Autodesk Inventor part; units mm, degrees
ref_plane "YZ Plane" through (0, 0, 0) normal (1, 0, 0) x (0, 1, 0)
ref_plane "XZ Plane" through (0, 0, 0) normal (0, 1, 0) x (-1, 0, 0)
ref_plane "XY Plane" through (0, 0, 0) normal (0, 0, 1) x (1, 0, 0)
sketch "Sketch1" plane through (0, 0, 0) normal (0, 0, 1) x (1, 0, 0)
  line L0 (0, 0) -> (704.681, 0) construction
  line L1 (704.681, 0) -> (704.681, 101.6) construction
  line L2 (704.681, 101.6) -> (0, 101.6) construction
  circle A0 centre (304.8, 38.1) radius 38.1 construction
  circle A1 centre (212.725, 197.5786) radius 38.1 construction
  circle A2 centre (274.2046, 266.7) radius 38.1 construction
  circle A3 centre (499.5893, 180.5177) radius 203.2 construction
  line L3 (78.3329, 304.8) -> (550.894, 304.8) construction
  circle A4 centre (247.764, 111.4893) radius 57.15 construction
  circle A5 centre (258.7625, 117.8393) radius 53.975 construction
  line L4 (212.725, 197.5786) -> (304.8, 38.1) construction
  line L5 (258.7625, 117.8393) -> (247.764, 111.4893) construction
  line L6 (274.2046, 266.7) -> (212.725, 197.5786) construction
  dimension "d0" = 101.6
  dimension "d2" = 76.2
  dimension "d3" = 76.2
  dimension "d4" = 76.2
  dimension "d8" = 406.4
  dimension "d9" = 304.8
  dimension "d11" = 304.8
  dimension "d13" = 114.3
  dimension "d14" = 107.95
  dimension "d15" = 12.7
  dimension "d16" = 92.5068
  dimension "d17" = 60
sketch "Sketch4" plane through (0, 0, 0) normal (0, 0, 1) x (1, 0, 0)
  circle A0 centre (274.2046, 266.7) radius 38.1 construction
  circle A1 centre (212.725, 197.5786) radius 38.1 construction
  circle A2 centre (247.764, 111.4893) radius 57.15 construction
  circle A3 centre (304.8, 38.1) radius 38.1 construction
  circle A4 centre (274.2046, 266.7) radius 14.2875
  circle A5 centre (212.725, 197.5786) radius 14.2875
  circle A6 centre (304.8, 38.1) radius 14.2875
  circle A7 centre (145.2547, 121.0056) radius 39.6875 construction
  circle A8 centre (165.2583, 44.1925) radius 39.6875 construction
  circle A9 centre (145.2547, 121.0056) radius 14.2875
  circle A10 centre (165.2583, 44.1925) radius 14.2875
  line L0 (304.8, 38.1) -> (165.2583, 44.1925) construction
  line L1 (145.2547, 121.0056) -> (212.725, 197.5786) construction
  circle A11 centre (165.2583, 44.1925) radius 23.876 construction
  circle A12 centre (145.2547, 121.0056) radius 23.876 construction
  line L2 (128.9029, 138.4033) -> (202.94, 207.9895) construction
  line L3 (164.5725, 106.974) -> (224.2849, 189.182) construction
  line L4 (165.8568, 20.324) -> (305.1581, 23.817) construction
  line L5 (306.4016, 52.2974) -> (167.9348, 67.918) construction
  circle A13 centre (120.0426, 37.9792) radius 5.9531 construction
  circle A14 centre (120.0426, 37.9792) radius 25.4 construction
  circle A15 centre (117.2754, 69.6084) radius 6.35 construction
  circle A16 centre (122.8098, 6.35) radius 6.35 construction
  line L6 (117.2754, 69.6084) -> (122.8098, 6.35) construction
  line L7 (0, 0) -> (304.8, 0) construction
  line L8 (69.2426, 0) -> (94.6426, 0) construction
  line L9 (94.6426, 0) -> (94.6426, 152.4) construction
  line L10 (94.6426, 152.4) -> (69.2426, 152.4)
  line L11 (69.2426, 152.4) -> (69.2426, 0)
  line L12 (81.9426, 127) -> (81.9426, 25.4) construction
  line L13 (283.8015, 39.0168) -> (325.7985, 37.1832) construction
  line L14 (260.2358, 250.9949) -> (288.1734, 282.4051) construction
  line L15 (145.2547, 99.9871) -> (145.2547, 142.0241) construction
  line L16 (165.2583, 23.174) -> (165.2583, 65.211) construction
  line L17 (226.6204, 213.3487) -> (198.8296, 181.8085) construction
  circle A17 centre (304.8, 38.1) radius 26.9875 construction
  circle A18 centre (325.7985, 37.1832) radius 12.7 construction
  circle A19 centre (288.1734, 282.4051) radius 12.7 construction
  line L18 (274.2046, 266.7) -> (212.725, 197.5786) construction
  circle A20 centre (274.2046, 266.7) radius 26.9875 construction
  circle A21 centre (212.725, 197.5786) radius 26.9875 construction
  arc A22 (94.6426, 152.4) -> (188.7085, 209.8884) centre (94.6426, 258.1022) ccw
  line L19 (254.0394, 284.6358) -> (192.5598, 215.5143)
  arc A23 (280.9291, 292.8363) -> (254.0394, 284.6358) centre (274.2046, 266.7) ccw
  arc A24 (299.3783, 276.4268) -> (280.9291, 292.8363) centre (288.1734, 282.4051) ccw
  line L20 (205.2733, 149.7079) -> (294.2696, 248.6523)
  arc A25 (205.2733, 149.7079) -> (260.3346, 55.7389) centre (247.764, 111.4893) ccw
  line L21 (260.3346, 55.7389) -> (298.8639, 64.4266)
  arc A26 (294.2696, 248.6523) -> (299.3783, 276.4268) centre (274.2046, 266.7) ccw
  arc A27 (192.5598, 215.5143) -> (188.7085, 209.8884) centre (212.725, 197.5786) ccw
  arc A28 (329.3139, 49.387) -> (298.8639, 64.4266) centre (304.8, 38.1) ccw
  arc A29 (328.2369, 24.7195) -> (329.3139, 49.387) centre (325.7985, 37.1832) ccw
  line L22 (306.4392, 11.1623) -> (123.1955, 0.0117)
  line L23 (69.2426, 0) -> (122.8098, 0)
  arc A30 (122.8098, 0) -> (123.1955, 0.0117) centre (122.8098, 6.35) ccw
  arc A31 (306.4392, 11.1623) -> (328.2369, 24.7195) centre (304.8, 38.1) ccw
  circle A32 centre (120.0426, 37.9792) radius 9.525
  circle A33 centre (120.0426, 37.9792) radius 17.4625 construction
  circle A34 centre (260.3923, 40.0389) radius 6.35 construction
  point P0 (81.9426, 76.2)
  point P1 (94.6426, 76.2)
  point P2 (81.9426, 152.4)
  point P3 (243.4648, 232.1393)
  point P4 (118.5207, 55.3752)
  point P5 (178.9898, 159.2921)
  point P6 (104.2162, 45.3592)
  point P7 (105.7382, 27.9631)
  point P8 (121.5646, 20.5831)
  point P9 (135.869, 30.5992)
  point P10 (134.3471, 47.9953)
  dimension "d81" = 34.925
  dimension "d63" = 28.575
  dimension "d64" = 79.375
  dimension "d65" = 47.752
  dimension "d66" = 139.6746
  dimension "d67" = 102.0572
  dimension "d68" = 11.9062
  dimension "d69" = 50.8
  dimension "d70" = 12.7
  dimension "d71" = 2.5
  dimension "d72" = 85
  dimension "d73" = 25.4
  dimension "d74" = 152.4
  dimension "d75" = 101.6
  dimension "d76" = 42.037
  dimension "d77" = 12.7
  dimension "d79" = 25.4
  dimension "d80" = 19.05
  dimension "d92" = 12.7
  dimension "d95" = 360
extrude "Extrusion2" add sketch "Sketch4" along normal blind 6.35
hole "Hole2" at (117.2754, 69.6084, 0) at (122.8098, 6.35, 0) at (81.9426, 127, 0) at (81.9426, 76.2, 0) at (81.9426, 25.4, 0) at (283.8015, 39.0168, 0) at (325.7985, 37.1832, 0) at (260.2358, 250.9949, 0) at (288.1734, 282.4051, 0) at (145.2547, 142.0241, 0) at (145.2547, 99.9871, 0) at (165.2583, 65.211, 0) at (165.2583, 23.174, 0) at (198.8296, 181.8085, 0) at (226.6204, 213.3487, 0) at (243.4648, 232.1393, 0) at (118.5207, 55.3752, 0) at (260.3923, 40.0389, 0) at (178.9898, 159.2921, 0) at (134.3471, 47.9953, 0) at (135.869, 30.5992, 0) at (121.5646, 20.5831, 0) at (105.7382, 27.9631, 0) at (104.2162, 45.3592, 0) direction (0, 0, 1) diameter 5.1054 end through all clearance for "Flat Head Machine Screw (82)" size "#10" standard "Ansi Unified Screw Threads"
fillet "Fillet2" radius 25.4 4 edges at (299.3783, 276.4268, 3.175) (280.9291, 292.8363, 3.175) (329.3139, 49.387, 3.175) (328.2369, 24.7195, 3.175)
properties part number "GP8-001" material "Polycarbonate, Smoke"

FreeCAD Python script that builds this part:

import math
import FreeCAD as App
import Part
import Sketcher

V = App.Vector
Q = App.Units.Quantity


def edges_at(feature, points):
    """Names of the edges that pass closest to the given points."""
    edges = feature.Shape.Edges
    near = lambda p: min(range(len(edges)), key=lambda i: edges[i].distToShape(Part.Vertex(*p))[0])
    return sorted({f"Edge{near(p) + 1}" for p in points})

doc = App.newDocument("Part")
body = doc.addObject("PartDesign::Body", "Body")

sketch1 = body.newObject("Sketcher::SketchObject", "Sketch")
sketch1.AttachmentSupport = (doc.getObject("XY_Plane"), [""])
sketch1.MapMode = "FlatFace"
sketch1.addGeometry(Part.ArcOfCircle(Part.Circle(V(94.6426, 258.1022, 0), V(0, 0, 1), 105.7022), math.radians(-90), math.radians(-27.137564)), False)
sketch1.addGeometry(Part.LineSegment(V(94.6426, 152.4, 0), V(69.2426, 152.4, 0)), False)
sketch1.addGeometry(Part.LineSegment(V(69.2426, 152.4, 0), V(69.2426, 0, 0)), False)
sketch1.addGeometry(Part.LineSegment(V(69.2426, 0, 0), V(122.8098, 0, 0)), False)
sketch1.addGeometry(Part.ArcOfCircle(Part.Circle(V(122.809395, 6.376663, 0), V(0, 0, 1), 6.376663), math.radians(-89.99636), math.radians(-86.528633)), False)
sketch1.addGeometry(Part.LineSegment(V(123.1955, 0.0117, 0), V(306.4392, 11.1623, 0)), False)
sketch1.addGeometry(Part.ArcOfCircle(Part.Circle(V(304.8, 38.1, 0), V(0, 0, 1), 26.9875), math.radians(-86.517759), math.radians(-29.722735)), False)
sketch1.addGeometry(Part.ArcOfCircle(Part.Circle(V(325.7985, 37.1832, 0), V(0, 0, 1), 12.7), math.radians(-78.930462), math.radians(73.930541)), False)
sketch1.addGeometry(Part.ArcOfCircle(Part.Circle(V(304.8, 38.1, 0), V(0, 0, 1), 26.987528), math.radians(24.722887), math.radians(102.706512)), False)
sketch1.addGeometry(Part.LineSegment(V(298.8639, 64.4266, 0), V(260.3346, 55.7389, 0)), False)
sketch1.addGeometry(Part.ArcOfCircle(Part.Circle(V(247.764, 111.4893, 0), V(0, 0, 1), 57.15), math.radians(138.029949), math.radians(282.706557)), False)
sketch1.addGeometry(Part.LineSegment(V(205.2733, 149.7079, 0), V(294.2696, 248.6523, 0)), False)
sketch1.addGeometry(Part.ArcOfCircle(Part.Circle(V(274.2046, 266.7, 0), V(0, 0, 1), 26.9875), math.radians(-41.97017), math.radians(21.125903)), False)
sketch1.addGeometry(Part.ArcOfCircle(Part.Circle(V(288.1734, 282.4051, 0), V(0, 0, 1), 12.699994), math.radians(-28.081855), math.radians(124.779355)), False)
sketch1.addGeometry(Part.ArcOfCircle(Part.Circle(V(274.2046, 266.7, 0), V(0, 0, 1), 26.9875), math.radians(75.571543), math.radians(138.348724)), False)
sketch1.addGeometry(Part.LineSegment(V(254.0394, 284.6358, 0), V(192.5598, 215.5143, 0)), False)
sketch1.addGeometry(Part.ArcOfCircle(Part.Circle(V(212.723925, 197.57944, 0), V(0, 0, 1), 26.986129), math.radians(138.348699), math.radians(152.862868)), False)
sketch1.addGeometry(Part.Circle(V(120.0426, 37.9792, 0), V(0, 0, 1), 9.525), False)
sketch1.addGeometry(Part.Circle(V(165.2583, 44.1925, 0), V(0, 0, 1), 14.2875), False)
sketch1.addGeometry(Part.Circle(V(145.2547, 121.0056, 0), V(0, 0, 1), 14.2875), False)
sketch1.addGeometry(Part.Circle(V(304.8, 38.1, 0), V(0, 0, 1), 14.2875), False)
sketch1.addGeometry(Part.Circle(V(212.725, 197.5786, 0), V(0, 0, 1), 14.2875), False)
sketch1.addGeometry(Part.Circle(V(274.2046, 266.7, 0), V(0, 0, 1), 14.2875), False)
sketch1.addConstraint(Sketcher.Constraint("Coincident", 0, 1, 1, 1))
sketch1.addConstraint(Sketcher.Constraint("Coincident", 1, 2, 2, 1))
sketch1.addConstraint(Sketcher.Constraint("Coincident", 2, 2, 3, 1))
sketch1.addConstraint(Sketcher.Constraint("Coincident", 3, 2, 4, 1))
sketch1.addConstraint(Sketcher.Constraint("Coincident", 4, 2, 5, 1))
sketch1.addConstraint(Sketcher.Constraint("Coincident", 5, 2, 6, 1))
sketch1.addConstraint(Sketcher.Constraint("Coincident", 6, 2, 7, 1))
sketch1.addConstraint(Sketcher.Constraint("Coincident", 7, 2, 8, 1))
sketch1.addConstraint(Sketcher.Constraint("Coincident", 8, 2, 9, 1))
sketch1.addConstraint(Sketcher.Constraint("Coincident", 9, 2, 10, 2))
sketch1.addConstraint(Sketcher.Constraint("Coincident", 10, 1, 11, 1))
sketch1.addConstraint(Sketcher.Constraint("Coincident", 11, 2, 12, 1))
sketch1.addConstraint(Sketcher.Constraint("Coincident", 12, 2, 13, 1))
sketch1.addConstraint(Sketcher.Constraint("Coincident", 13, 2, 14, 1))
sketch1.addConstraint(Sketcher.Constraint("Coincident", 14, 2, 15, 1))
sketch1.addConstraint(Sketcher.Constraint("Coincident", 15, 2, 16, 1))
sketch1.addConstraint(Sketcher.Constraint("Coincident", 16, 2, 0, 2))
sketch1.addConstraint(Sketcher.Constraint("Horizontal", 1))
sketch1.addConstraint(Sketcher.Constraint("Vertical", 2))
sketch1.addConstraint(Sketcher.Constraint("Horizontal", 3))
sketch1.addConstraint(Sketcher.Constraint("Coincident", 8, 3, 6, 3))
sketch1.addConstraint(Sketcher.Constraint("Coincident", 14, 3, 12, 3))
sketch1.addConstraint(Sketcher.Constraint("Coincident", 20, 3, 6, 3))
sketch1.addConstraint(Sketcher.Constraint("Coincident", 22, 3, 12, 3))
sketch1.addConstraint(Sketcher.Constraint("PointOnObject", 2, 2, -1))
sketch1.addConstraint(Sketcher.Constraint("Radius", 7, Q("0.5 in")))
sketch1.addConstraint(Sketcher.Constraint("Radius", 13, Q("0.5 in")))
sketch1.addConstraint(Sketcher.Constraint("Diameter", 17, Q("0.75 in")))
sketch1.addConstraint(Sketcher.Constraint("DistanceX", 1, 2, 1, 1, Q("1 in")))
sketch1.addConstraint(Sketcher.Constraint("DistanceY", 2, 2, 2, 1, Q("6 in")))
sketch1.addConstraint(Sketcher.Constraint("Diameter", 18, Q("1.125 in")))
sketch1.addConstraint(Sketcher.Constraint("Diameter", 19, Q("1.125 in")))
sketch1.addConstraint(Sketcher.Constraint("Diameter", 20, Q("1.125 in")))
sketch1.addConstraint(Sketcher.Constraint("Diameter", 21, Q("1.125 in")))
sketch1.addConstraint(Sketcher.Constraint("Diameter", 22, Q("1.125 in")))
sketch1.addConstraint(Sketcher.Constraint("DistanceX", 0, 1, 17, 3, Q("1 in")))
sketch1.addConstraint(Sketcher.Constraint("DistanceX", 1, 2, 0, 3, Q("1 in")))
sketch1.addConstraint(Sketcher.Constraint("Radius", 10, Q("2.25 in")))
sketch1.addConstraint(Sketcher.Constraint("DistanceX", -1, 1, 6, 3, Q("12 in")))
sketch1.addConstraint(Sketcher.Constraint("Radius", 6, Q("1.0625 in")))
sketch1.addConstraint(Sketcher.Constraint("Radius", 8, Q("1.0625 in")))
sketch1.addConstraint(Sketcher.Constraint("Radius", 12, Q("1.0625 in")))
sketch1.addConstraint(Sketcher.Constraint("Radius", 14, Q("1.0625 in")))
sketch1.addConstraint(Sketcher.Constraint("DistanceY", 6, 3, 12, 3, Q("9 in")))
sketch1.addConstraint(Sketcher.Constraint("DistanceY", -1, 1, 6, 3, Q("1.5 in")))
sketch1.addConstraint(Sketcher.Constraint("Radius", 0, Q("4.1615 in")))
sketch1.addConstraint(Sketcher.Constraint("Radius", 4, 6.3767))
sketch1.addConstraint(Sketcher.Constraint("Radius", 16, 26.9861))
sketch1.addConstraint(Sketcher.Constraint("DistanceX", 13, 3, 11, 2, Q("0.24 in")))
sketch1.addConstraint(Sketcher.Constraint("Distance", 15, Q("3.642 in")))
sketch1.addConstraint(Sketcher.Constraint("DistanceY", -1, 1, 19, 3, Q("4.764 in")))
sketch1.addConstraint(Sketcher.Constraint("DistanceX", -1, 1, 21, 3, Q("8.375 in")))
sketch1.addConstraint(Sketcher.Constraint("DistanceY", -1, 1, 13, 2, Q("11.529 in")))
sketch1.addConstraint(Sketcher.Constraint("DistanceX", 12, 3, 7, 3, 51.594))
sketch1.addConstraint(Sketcher.Constraint("DistanceX", 7, 3, 6, 2, Q("0.096 in")))
sketch1.addConstraint(Sketcher.Constraint("DistanceX", 3, 1, 3, 2, 53.5672))
sketch1.addConstraint(Sketcher.Constraint("DistanceY", -1, 1, 7, 3, Q("1.4639 in")))
sketch1.addConstraint(Sketcher.Constraint("DistanceX", -1, 1, 10, 3, Q("9.7545 in")))
sketch1.addConstraint(Sketcher.Constraint("DistanceX", -1, 1, 13, 3, Q("11.3454 in")))
sketch1.addConstraint(Sketcher.Constraint("DistanceX", -1, 1, 19, 3, Q("5.7187 in")))
sketch1.addConstraint(Sketcher.Constraint("DistanceX", -1, 1, 8, 2, Q("11.7663 in")))
sketch1.addConstraint(Sketcher.Constraint("DistanceX", -1, 1, 9, 2, Q("10.2494 in")))
sketch1.addConstraint(Sketcher.Constraint("DistanceX", -1, 1, 15, 2, Q("7.5811 in")))
sketch1.addConstraint(Sketcher.Constraint("DistanceX", 4, 3, 7, 3, Q("7.9917 in")))
sketch1.addConstraint(Sketcher.Constraint("DistanceY", 4, 3, 10, 3, Q("4.1383 in")))
sketch1.addConstraint(Sketcher.Constraint("DistanceX", 0, 3, 10, 3, Q("6.0284 in")))
sketch1.addConstraint(Sketcher.Constraint("DistanceX", 16, 3, 12, 3, Q("2.4205 in")))
sketch1.addConstraint(Sketcher.Constraint("DistanceY", 4, 3, 17, 3, Q("1.2442 in")))
sketch1.addConstraint(Sketcher.Constraint("DistanceX", 3, 2, 18, 3, Q("1.6712 in")))
sketch1.addConstraint(Sketcher.Constraint("DistanceX", 4, 3, 4, 2, Q("0.0152 in")))
sketch1.addConstraint(Sketcher.Constraint("DistanceY", 4, 2, 18, 3, Q("1.7394 in")))
sketch1.addConstraint(Sketcher.Constraint("DistanceY", 10, 1, 16, 3, Q("1.8847 in")))
sketch1.addConstraint(Sketcher.Constraint("DistanceY", 16, 2, 15, 2, Q("0.2215 in")))
sketch1.addConstraint(Sketcher.Constraint("Distance", 5, 183.5827))
sketch1.addConstraint(Sketcher.Constraint("DistanceY", -1, 1, 21, 3, 197.5786))
pad1 = body.newObject("PartDesign::Pad", "Pad")
pad1.Profile = sketch1
pad1.Length = Q("0.25 in")

sketch2 = body.newObject("Sketcher::SketchObject", "Sketch001")
sketch2.AttachmentSupport = (doc.getObject("XY_Plane"), [""])
sketch2.MapMode = "FlatFace"
sketch2.addGeometry(Part.Circle(V(117.2754, 69.6084, 0), V(0, 0, 1), 2.5527), False)
sketch2.addGeometry(Part.Circle(V(122.8098, 6.35, 0), V(0, 0, 1), 2.5527), False)
sketch2.addGeometry(Part.Circle(V(81.9426, 127, 0), V(0, 0, 1), 2.5527), False)
sketch2.addGeometry(Part.Circle(V(81.9426, 76.2, 0), V(0, 0, 1), 2.5527), False)
sketch2.addGeometry(Part.Circle(V(81.9426, 25.4, 0), V(0, 0, 1), 2.5527), False)
sketch2.addGeometry(Part.Circle(V(283.8015, 39.0168, 0), V(0, 0, 1), 2.5527), False)
sketch2.addGeometry(Part.Circle(V(325.7985, 37.1832, 0), V(0, 0, 1), 2.5527), False)
sketch2.addGeometry(Part.Circle(V(260.2358, 250.9949, 0), V(0, 0, 1), 2.5527), False)
sketch2.addGeometry(Part.Circle(V(288.1734, 282.4051, 0), V(0, 0, 1), 2.5527), False)
sketch2.addGeometry(Part.Circle(V(145.2547, 142.0241, 0), V(0, 0, 1), 2.5527), False)
sketch2.addGeometry(Part.Circle(V(145.2547, 99.9871, 0), V(0, 0, 1), 2.5527), False)
sketch2.addGeometry(Part.Circle(V(165.2583, 65.211, 0), V(0, 0, 1), 2.5527), False)
sketch2.addGeometry(Part.Circle(V(165.2583, 23.174, 0), V(0, 0, 1), 2.5527), False)
sketch2.addGeometry(Part.Circle(V(198.8296, 181.8085, 0), V(0, 0, 1), 2.5527), False)
sketch2.addGeometry(Part.Circle(V(226.6204, 213.3487, 0), V(0, 0, 1), 2.5527), False)
sketch2.addGeometry(Part.Circle(V(243.4648, 232.1393, 0), V(0, 0, 1), 2.5527), False)
sketch2.addGeometry(Part.Circle(V(118.5207, 55.3752, 0), V(0, 0, 1), 2.5527), False)
sketch2.addGeometry(Part.Circle(V(260.3923, 40.0389, 0), V(0, 0, 1), 2.5527), False)
sketch2.addGeometry(Part.Circle(V(178.9898, 159.2921, 0), V(0, 0, 1), 2.5527), False)
sketch2.addGeometry(Part.Circle(V(134.3471, 47.9953, 0), V(0, 0, 1), 2.5527), False)
sketch2.addGeometry(Part.Circle(V(135.869, 30.5992, 0), V(0, 0, 1), 2.5527), False)
sketch2.addGeometry(Part.Circle(V(121.5646, 20.5831, 0), V(0, 0, 1), 2.5527), False)
sketch2.addGeometry(Part.Circle(V(105.7382, 27.9631, 0), V(0, 0, 1), 2.5527), False)
sketch2.addGeometry(Part.Circle(V(104.2162, 45.3592, 0), V(0, 0, 1), 2.5527), False)
sketch2.addConstraint(Sketcher.Constraint("Equal", 0, 1))
sketch2.addConstraint(Sketcher.Constraint("Equal", 1, 2))
sketch2.addConstraint(Sketcher.Constraint("Equal", 2, 3))
sketch2.addConstraint(Sketcher.Constraint("Equal", 3, 4))
sketch2.addConstraint(Sketcher.Constraint("Equal", 4, 5))
sketch2.addConstraint(Sketcher.Constraint("Equal", 5, 6))
sketch2.addConstraint(Sketcher.Constraint("Equal", 6, 7))
sketch2.addConstraint(Sketcher.Constraint("Equal", 7, 8))
sketch2.addConstraint(Sketcher.Constraint("Equal", 8, 9))
sketch2.addConstraint(Sketcher.Constraint("Equal", 9, 10))
sketch2.addConstraint(Sketcher.Constraint("Equal", 10, 11))
sketch2.addConstraint(Sketcher.Constraint("Equal", 11, 12))
sketch2.addConstraint(Sketcher.Constraint("Equal", 12, 13))
sketch2.addConstraint(Sketcher.Constraint("Equal", 13, 14))
sketch2.addConstraint(Sketcher.Constraint("Equal", 14, 15))
sketch2.addConstraint(Sketcher.Constraint("Equal", 15, 16))
sketch2.addConstraint(Sketcher.Constraint("Equal", 16, 17))
sketch2.addConstraint(Sketcher.Constraint("Equal", 17, 18))
sketch2.addConstraint(Sketcher.Constraint("Equal", 18, 19))
sketch2.addConstraint(Sketcher.Constraint("Equal", 19, 20))
sketch2.addConstraint(Sketcher.Constraint("Equal", 20, 21))
sketch2.addConstraint(Sketcher.Constraint("Equal", 21, 22))
sketch2.addConstraint(Sketcher.Constraint("Equal", 22, 23))
sketch2.addConstraint(Sketcher.Constraint("Vertical", 2, 3, 3, 3))
sketch2.addConstraint(Sketcher.Constraint("Vertical", 3, 3, 4, 3))
sketch2.addConstraint(Sketcher.Constraint("Vertical", 9, 3, 10, 3))
sketch2.addConstraint(Sketcher.Constraint("Vertical", 11, 3, 12, 3))
sketch2.addConstraint(Sketcher.Constraint("Diameter", 0, Q("0.201 in")))
sketch2.addConstraint(Sketcher.Constraint("DistanceY", -1, 1, 2, 3, Q("5 in")))
sketch2.addConstraint(Sketcher.Constraint("DistanceY", -1, 1, 3, 3, Q("3 in")))
sketch2.addConstraint(Sketcher.Constraint("DistanceY", -1, 1, 4, 3, Q("1 in")))
sketch2.addConstraint(Sketcher.Constraint("DistanceY", -1, 1, 1, 3, Q("0.25 in")))
sketch2.addConstraint(Sketcher.Constraint("DistanceX", -1, 1, 21, 3, Q("4.786 in")))
sketch2.addConstraint(Sketcher.Constraint("DistanceX", -1, 1, 23, 3, Q("4.103 in")))
sketch2.addConstraint(Sketcher.Constraint("DistanceY", 0, 3, 9, 3, Q("2.851 in")))
sketch2.addConstraint(Sketcher.Constraint("DistanceY", 0, 3, 10, 3, Q("1.196 in")))
sketch2.addConstraint(Sketcher.Constraint("DistanceY", 12, 3, 11, 3, Q("1.655 in")))
sketch2.addConstraint(Sketcher.Constraint("DistanceY", 12, 3, 0, 3, Q("1.828126 in")))
sketch2.addConstraint(Sketcher.Constraint("DistanceY", 14, 3, 8, 3, Q("2.7187559 in")))
sketch2.addConstraint(Sketcher.Constraint("DistanceX", 16, 3, 20, 3, Q("0.683 in")))
sketch2.addConstraint(Sketcher.Constraint("DistanceY", -1, 1, 0, 3, Q("2.7405 in")))
sketch2.addConstraint(Sketcher.Constraint("DistanceY", -1, 1, 5, 3, Q("1.5361 in")))
sketch2.addConstraint(Sketcher.Constraint("DistanceY", -1, 1, 6, 3, Q("1.4639 in")))
sketch2.addConstraint(Sketcher.Constraint("DistanceX", -1, 1, 7, 3, Q("10.2455 in")))
sketch2.addConstraint(Sketcher.Constraint("DistanceY", -1, 1, 7, 3, Q("9.8817 in")))
sketch2.addConstraint(Sketcher.Constraint("DistanceX", -1, 1, 8, 3, Q("11.3454 in")))
sketch2.addConstraint(Sketcher.Constraint("DistanceY", -1, 1, 8, 3, Q("11.1183 in")))
sketch2.addConstraint(Sketcher.Constraint("DistanceX", -1, 1, 9, 3, Q("5.7187 in")))
sketch2.addConstraint(Sketcher.Constraint("DistanceY", -1, 1, 20, 3, Q("1.2047 in")))
sketch2.addConstraint(Sketcher.Constraint("DistanceY", -1, 1, 22, 3, Q("1.1009 in")))
sketch2.addConstraint(Sketcher.Constraint("DistanceY", -1, 1, 23, 3, Q("1.7858 in")))
sketch2.addConstraint(Sketcher.Constraint("DistanceX", 0, 3, 1, 3, Q("0.2179 in")))
sketch2.addConstraint(Sketcher.Constraint("DistanceX", 4, 3, 5, 3, Q("7.9472 in")))
sketch2.addConstraint(Sketcher.Constraint("DistanceX", 7, 3, 6, 3, Q("2.5812 in")))
sketch2.addConstraint(Sketcher.Constraint("DistanceX", 2, 3, 9, 3, Q("2.4926 in")))
sketch2.addConstraint(Sketcher.Constraint("DistanceX", 0, 3, 11, 3, Q("1.8891 in")))
sketch2.addConstraint(Sketcher.Constraint("DistanceX", 11, 3, 13, 3, Q("1.3217 in")))
sketch2.addConstraint(Sketcher.Constraint("DistanceX", 13, 3, 15, 3, Q("1.7573 in")))
sketch2.addConstraint(Sketcher.Constraint("DistanceX", 18, 3, 13, 3, Q("0.7811 in")))
sketch2.addConstraint(Sketcher.Constraint("DistanceY", 19, 3, 0, 3, Q("0.8509 in")))
sketch2.addConstraint(Sketcher.Constraint("DistanceX", 22, 3, 1, 3, Q("0.6721 in")))
sketch2.addConstraint(Sketcher.Constraint("DistanceX", -1, 1, 0, 3, 117.2754))
sketch2.addConstraint(Sketcher.Constraint("DistanceY", -1, 1, 13, 3, 181.8085))
sketch2.addConstraint(Sketcher.Constraint("DistanceX", -1, 1, 14, 3, 226.6204))
sketch2.addConstraint(Sketcher.Constraint("DistanceY", -1, 1, 15, 3, 232.1393))
sketch2.addConstraint(Sketcher.Constraint("DistanceX", -1, 1, 16, 3, 118.5207))
sketch2.addConstraint(Sketcher.Constraint("DistanceY", -1, 1, 16, 3, 55.3752))
sketch2.addConstraint(Sketcher.Constraint("DistanceX", -1, 1, 17, 3, 260.3923))
sketch2.addConstraint(Sketcher.Constraint("DistanceY", -1, 1, 17, 3, 40.039))
sketch2.addConstraint(Sketcher.Constraint("DistanceY", -1, 1, 18, 3, 159.292))
sketch2.addConstraint(Sketcher.Constraint("DistanceX", -1, 1, 19, 3, 134.347))
sketch2.addConstraint(Sketcher.Constraint("DistanceY", -1, 1, 21, 3, 20.583))
doc.recompute()
hole = body.newObject("PartDesign::Hole", "Hole")
hole.Profile = sketch2
hole.ThreadType = "None"
hole.Diameter = Q("0.201 in")
hole.DepthType = "ThroughAll"
hole.Reversed = True
doc.recompute()

fillet = body.newObject("PartDesign::Fillet", "Fillet")
fillet.Base = (hole, edges_at(hole, [
    (299.378, 276.427, 3.175),
    (280.929, 292.836, 3.175),
    (329.314, 49.387, 3.175),
    (328.237, 24.72, 3.175),
]))
fillet.Radius = Q("1 in")

doc.recompute()
